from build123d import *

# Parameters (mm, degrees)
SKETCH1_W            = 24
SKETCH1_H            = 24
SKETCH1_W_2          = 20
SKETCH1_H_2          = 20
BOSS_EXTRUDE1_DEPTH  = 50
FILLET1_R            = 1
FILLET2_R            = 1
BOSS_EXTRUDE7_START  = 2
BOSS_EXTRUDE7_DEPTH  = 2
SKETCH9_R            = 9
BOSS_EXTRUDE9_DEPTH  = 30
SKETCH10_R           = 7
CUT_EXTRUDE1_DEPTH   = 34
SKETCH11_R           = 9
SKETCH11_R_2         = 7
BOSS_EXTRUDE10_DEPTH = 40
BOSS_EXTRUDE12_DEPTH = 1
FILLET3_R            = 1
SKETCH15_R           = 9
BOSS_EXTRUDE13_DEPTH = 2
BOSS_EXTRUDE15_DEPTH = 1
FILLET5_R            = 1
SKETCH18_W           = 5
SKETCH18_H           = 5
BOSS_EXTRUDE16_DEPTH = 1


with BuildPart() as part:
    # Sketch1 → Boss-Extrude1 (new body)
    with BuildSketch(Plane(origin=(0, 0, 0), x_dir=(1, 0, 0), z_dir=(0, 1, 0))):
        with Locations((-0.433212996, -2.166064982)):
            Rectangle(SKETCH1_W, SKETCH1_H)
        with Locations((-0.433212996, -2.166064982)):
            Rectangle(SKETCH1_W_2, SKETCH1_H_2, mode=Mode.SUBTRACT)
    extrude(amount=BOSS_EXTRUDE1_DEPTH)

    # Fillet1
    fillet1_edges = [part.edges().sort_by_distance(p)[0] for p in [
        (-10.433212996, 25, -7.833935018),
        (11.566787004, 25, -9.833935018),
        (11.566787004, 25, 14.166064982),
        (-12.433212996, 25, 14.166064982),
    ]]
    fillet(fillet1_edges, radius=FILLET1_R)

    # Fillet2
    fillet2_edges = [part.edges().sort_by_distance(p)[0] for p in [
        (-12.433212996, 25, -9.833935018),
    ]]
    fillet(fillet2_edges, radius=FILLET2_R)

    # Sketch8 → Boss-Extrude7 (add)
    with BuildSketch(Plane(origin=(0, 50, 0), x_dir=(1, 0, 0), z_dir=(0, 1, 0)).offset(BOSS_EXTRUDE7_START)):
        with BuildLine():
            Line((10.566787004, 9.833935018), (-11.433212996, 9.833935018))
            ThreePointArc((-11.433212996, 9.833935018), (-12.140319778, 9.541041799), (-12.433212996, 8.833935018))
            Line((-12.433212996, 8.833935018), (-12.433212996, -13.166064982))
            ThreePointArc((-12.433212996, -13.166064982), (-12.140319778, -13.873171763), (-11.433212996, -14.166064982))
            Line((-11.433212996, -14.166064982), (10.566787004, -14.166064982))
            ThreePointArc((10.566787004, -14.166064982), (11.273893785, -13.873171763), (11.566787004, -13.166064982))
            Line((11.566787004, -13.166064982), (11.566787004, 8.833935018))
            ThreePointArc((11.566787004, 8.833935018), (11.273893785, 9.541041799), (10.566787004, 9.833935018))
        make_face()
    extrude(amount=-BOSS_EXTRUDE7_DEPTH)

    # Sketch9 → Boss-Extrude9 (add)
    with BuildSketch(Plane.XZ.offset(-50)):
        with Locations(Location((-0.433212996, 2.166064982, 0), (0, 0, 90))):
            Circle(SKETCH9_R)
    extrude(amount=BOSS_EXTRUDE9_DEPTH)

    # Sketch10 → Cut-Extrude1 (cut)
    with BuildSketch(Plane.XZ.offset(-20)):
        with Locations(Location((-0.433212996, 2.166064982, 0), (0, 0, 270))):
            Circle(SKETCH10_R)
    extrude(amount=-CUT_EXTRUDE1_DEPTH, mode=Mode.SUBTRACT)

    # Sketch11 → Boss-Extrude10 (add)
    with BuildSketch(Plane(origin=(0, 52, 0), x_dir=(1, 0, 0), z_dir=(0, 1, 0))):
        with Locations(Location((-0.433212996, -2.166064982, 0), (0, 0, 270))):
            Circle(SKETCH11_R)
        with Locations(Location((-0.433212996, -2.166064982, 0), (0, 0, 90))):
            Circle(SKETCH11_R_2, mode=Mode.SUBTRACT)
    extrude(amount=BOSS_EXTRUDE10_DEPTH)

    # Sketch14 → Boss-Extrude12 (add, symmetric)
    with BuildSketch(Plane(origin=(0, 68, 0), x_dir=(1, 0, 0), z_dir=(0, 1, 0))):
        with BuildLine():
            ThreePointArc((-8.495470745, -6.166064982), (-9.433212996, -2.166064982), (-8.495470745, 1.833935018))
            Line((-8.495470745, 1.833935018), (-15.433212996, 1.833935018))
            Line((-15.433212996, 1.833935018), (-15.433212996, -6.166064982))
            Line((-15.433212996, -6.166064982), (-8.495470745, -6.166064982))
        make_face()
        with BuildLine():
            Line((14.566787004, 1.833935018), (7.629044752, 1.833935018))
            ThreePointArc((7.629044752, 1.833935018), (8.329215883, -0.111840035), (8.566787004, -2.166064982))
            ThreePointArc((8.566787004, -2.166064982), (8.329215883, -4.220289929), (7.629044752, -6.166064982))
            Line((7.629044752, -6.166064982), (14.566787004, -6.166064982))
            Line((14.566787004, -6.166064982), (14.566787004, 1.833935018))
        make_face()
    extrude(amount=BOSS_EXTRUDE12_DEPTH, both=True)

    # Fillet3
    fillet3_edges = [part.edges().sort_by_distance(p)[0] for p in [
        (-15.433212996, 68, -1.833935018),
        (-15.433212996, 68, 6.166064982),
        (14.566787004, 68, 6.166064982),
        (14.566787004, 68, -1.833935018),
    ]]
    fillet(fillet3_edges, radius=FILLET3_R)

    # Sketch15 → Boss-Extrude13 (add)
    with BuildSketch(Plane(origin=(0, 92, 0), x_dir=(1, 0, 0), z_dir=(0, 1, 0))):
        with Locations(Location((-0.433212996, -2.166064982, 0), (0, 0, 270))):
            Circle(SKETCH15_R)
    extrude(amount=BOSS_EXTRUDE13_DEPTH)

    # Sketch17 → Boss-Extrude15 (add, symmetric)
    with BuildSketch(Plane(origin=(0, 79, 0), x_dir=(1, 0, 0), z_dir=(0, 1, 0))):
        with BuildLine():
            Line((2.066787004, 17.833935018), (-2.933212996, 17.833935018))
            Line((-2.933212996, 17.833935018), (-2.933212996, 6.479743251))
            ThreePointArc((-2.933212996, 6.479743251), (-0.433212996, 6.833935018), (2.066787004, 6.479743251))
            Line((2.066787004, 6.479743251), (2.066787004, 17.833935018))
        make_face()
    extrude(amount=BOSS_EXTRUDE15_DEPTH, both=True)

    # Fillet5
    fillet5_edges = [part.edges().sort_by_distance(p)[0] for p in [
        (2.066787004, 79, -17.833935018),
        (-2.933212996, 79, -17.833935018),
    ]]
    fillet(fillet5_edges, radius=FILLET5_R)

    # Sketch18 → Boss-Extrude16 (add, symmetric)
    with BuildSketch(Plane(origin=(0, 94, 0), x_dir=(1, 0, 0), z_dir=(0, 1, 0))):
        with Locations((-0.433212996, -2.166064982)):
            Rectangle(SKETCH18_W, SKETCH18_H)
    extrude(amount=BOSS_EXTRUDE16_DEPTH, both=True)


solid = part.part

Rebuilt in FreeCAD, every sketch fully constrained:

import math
import FreeCAD as App
import Part
import Sketcher
Q = App.Units.Quantity


def edges_at(feature, points):
    """Names of the edges that pass closest to the given points."""
    edges = feature.Shape.Edges
    near = lambda p: min(range(len(edges)), key=lambda i: edges[i].distToShape(Part.Vertex(*p))[0])
    return sorted({f"Edge{near(p) + 1}" for p in points})

doc = App.newDocument("Part")
body = doc.addObject("PartDesign::Body", "Body")

# Sketch on XZ plane
sketch1 = body.newObject("Sketcher::SketchObject", "Sketch")
sketch1.AttachmentSupport = (doc.getObject("XZ_Plane"), [""])
sketch1.MapMode = "FlatFace"
sketch1.addGeometry(Part.LineSegment(App.Vector(-12.433213, -9.833935, 0), App.Vector(-12.433213, 14.166065, 0)), False)
sketch1.addGeometry(Part.LineSegment(App.Vector(-12.433213, 14.166065, 0), App.Vector(11.566787, 14.166065, 0)), False)
sketch1.addGeometry(Part.LineSegment(App.Vector(11.566787, 14.166065, 0), App.Vector(11.566787, -9.833935, 0)), False)
sketch1.addGeometry(Part.LineSegment(App.Vector(11.566787, -9.833935, 0), App.Vector(-12.433213, -9.833935, 0)), False)
sketch1.addGeometry(Part.LineSegment(App.Vector(9.566787, 12.166065, 0), App.Vector(-10.433213, 12.166065, 0)), False)
sketch1.addGeometry(Part.LineSegment(App.Vector(-10.433213, 12.166065, 0), App.Vector(-10.433213, -7.833935, 0)), False)
sketch1.addGeometry(Part.LineSegment(App.Vector(-10.433213, -7.833935, 0), App.Vector(9.566787, -7.833935, 0)), False)
sketch1.addGeometry(Part.LineSegment(App.Vector(9.566787, -7.833935, 0), App.Vector(9.566787, 12.166065, 0)), False)
sketch1.addConstraint(Sketcher.Constraint("Coincident", 0, 2, 1, 1))
sketch1.addConstraint(Sketcher.Constraint("Coincident", 1, 2, 2, 1))
sketch1.addConstraint(Sketcher.Constraint("Coincident", 2, 2, 3, 1))
sketch1.addConstraint(Sketcher.Constraint("Coincident", 3, 2, 0, 1))
sketch1.addConstraint(Sketcher.Constraint("Coincident", 4, 2, 5, 1))
sketch1.addConstraint(Sketcher.Constraint("Coincident", 5, 2, 6, 1))
sketch1.addConstraint(Sketcher.Constraint("Coincident", 6, 2, 7, 1))
sketch1.addConstraint(Sketcher.Constraint("Coincident", 7, 2, 4, 1))
sketch1.addConstraint(Sketcher.Constraint("Vertical", 0))
sketch1.addConstraint(Sketcher.Constraint("Horizontal", 1))
sketch1.addConstraint(Sketcher.Constraint("Vertical", 2))
sketch1.addConstraint(Sketcher.Constraint("Horizontal", 3))
sketch1.addConstraint(Sketcher.Constraint("Horizontal", 4))
sketch1.addConstraint(Sketcher.Constraint("Vertical", 5))
sketch1.addConstraint(Sketcher.Constraint("Horizontal", 6))
sketch1.addConstraint(Sketcher.Constraint("Vertical", 7))
sketch1.addConstraint(Sketcher.Constraint("Equal", 3, 0))
sketch1.addConstraint(Sketcher.Constraint("Equal", 6, 5))
sketch1.addConstraint(Sketcher.Constraint("DistanceX", 1, 1, 1, 2, Q("24 mm")))
sketch1.addConstraint(Sketcher.Constraint("DistanceX", 4, 2, 4, 1, Q("20 mm")))
sketch1.addConstraint(Sketcher.Constraint("DistanceX", 0, 2, 4, 2, Q("2 mm")))
sketch1.addConstraint(Sketcher.Constraint("DistanceY", 4, 2, 0, 2, Q("2 mm")))
sketch1.addConstraint(Sketcher.Constraint("DistanceX", 0, 2, -1, 1, Q("12.433213 mm")))
sketch1.addConstraint(Sketcher.Constraint("DistanceY", -1, 1, 0, 2, Q("14.166065 mm")))
pad1 = body.newObject("PartDesign::Pad", "Pad")
pad1.Profile = sketch1
pad1.Length = 50
pad1.Reversed = True
doc.recompute()

fillet = body.newObject("PartDesign::Fillet", "Fillet")
fillet.Base = (pad1, edges_at(pad1, [
    (-10.433, 25, -7.834),
    (11.567, 25, -9.834),
    (11.567, 25, 14.166),
    (-12.433, 25, 14.166),
]))
fillet.Radius = 1
doc.recompute()

fillet2 = body.newObject("PartDesign::Fillet", "Fillet001")
fillet2.Base = (fillet, edges_at(fillet, [(-12.433, 25, -9.834)]))
fillet2.Radius = 1

# Sketch on XZ plane
sketch2 = body.newObject("Sketcher::SketchObject", "Sketch001")
sketch2.AttachmentSupport = (doc.getObject("XZ_Plane"), [""])
sketch2.MapMode = "FlatFace"
sketch2.AttachmentOffset = App.Placement(App.Vector(0, 0, -52), App.Rotation())
sketch2.addGeometry(Part.LineSegment(App.Vector(10.566787, -9.833935, 0), App.Vector(-11.433213, -9.833935, 0)), False)
sketch2.addGeometry(Part.ArcOfCircle(Part.Circle(App.Vector(-11.433213, -8.833935, 0), App.Vector(0, 0, 1), 1), math.radians(180), math.radians(270)), False)
sketch2.addGeometry(Part.LineSegment(App.Vector(-12.433213, -8.833935, 0), App.Vector(-12.433213, 13.166065, 0)), False)
sketch2.addGeometry(Part.ArcOfCircle(Part.Circle(App.Vector(-11.433213, 13.166065, 0), App.Vector(0, 0, 1), 1), math.radians(90), math.radians(180)), False)
sketch2.addGeometry(Part.LineSegment(App.Vector(-11.433213, 14.166065, 0), App.Vector(10.566787, 14.166065, 0)), False)
sketch2.addGeometry(Part.ArcOfCircle(Part.Circle(App.Vector(10.566787, 13.166065, 0), App.Vector(0, 0, 1), 1), math.radians(0), math.radians(90)), False)
sketch2.addGeometry(Part.LineSegment(App.Vector(11.566787, 13.166065, 0), App.Vector(11.566787, -8.833935, 0)), False)
sketch2.addGeometry(Part.ArcOfCircle(Part.Circle(App.Vector(10.566787, -8.833935, 0), App.Vector(0, 0, 1), 1), math.radians(-90), math.radians(0)), False)
sketch2.addConstraint(Sketcher.Constraint("Tangent", 0, 2, 1, 2))
sketch2.addConstraint(Sketcher.Constraint("Tangent", 1, 1, 2, 1))
sketch2.addConstraint(Sketcher.Constraint("Tangent", 2, 2, 3, 2))
sketch2.addConstraint(Sketcher.Constraint("Tangent", 3, 1, 4, 1))
sketch2.addConstraint(Sketcher.Constraint("Tangent", 4, 2, 5, 2))
sketch2.addConstraint(Sketcher.Constraint("Tangent", 5, 1, 6, 1))
sketch2.addConstraint(Sketcher.Constraint("Tangent", 6, 2, 7, 2))
sketch2.addConstraint(Sketcher.Constraint("Tangent", 7, 1, 0, 1))
sketch2.addConstraint(Sketcher.Constraint("Horizontal", 0))
sketch2.addConstraint(Sketcher.Constraint("Vertical", 2))
sketch2.addConstraint(Sketcher.Constraint("Horizontal", 4))
sketch2.addConstraint(Sketcher.Constraint("Vertical", 6))
sketch2.addConstraint(Sketcher.Constraint("Equal", 1, 3))
sketch2.addConstraint(Sketcher.Constraint("Equal", 3, 5))
sketch2.addConstraint(Sketcher.Constraint("Equal", 5, 7))
sketch2.addConstraint(Sketcher.Constraint("Equal", 4, 2))
sketch2.addConstraint(Sketcher.Constraint("Radius", 1, Q("1 mm")))
sketch2.addConstraint(Sketcher.Constraint("DistanceX", 0, 2, 0, 1, Q("22 mm")))
sketch2.addConstraint(Sketcher.Constraint("DistanceX", 1, 3, -1, 1, Q("11.433213 mm")))
sketch2.addConstraint(Sketcher.Constraint("DistanceY", 1, 3, -1, 1, Q("8.833935 mm")))
pad2 = body.newObject("PartDesign::Pad", "Pad001")
pad2.Profile = sketch2
pad2.Length = 2

# Sketch on XZ plane
sketch3 = body.newObject("Sketcher::SketchObject", "Sketch002")
sketch3.AttachmentSupport = (doc.getObject("XZ_Plane"), [""])
sketch3.MapMode = "FlatFace"
sketch3.AttachmentOffset = App.Placement(App.Vector(0, 0, -50), App.Rotation())
sketch3.addGeometry(Part.Circle(App.Vector(-0.433213, 2.166065, 0), App.Vector(0, 0, 1), 9), False)
sketch3.addConstraint(Sketcher.Constraint("Diameter", 0, Q("18 mm")))
sketch3.addConstraint(Sketcher.Constraint("DistanceX", 0, 3, -1, 1, Q("0.433213 mm")))
sketch3.addConstraint(Sketcher.Constraint("DistanceY", -1, 1, 0, 3, Q("2.166065 mm")))
pad3 = body.newObject("PartDesign::Pad", "Pad002")
pad3.Profile = sketch3
pad3.Length = 30

# Sketch on XZ plane
sketch4 = body.newObject("Sketcher::SketchObject", "Sketch003")
sketch4.AttachmentSupport = (doc.getObject("XZ_Plane"), [""])
sketch4.MapMode = "FlatFace"
sketch4.AttachmentOffset = App.Placement(App.Vector(0, 0, -20), App.Rotation())
sketch4.addGeometry(Part.Circle(App.Vector(-0.433213, 2.166065, 0), App.Vector(0, 0, 1), 7), False)
sketch4.addConstraint(Sketcher.Constraint("Diameter", 0, Q("14 mm")))
sketch4.addConstraint(Sketcher.Constraint("DistanceX", 0, 3, -1, 1, Q("0.433213 mm")))
sketch4.addConstraint(Sketcher.Constraint("DistanceY", -1, 1, 0, 3, Q("2.166065 mm")))
pocket1 = body.newObject("PartDesign::Pocket", "Pocket")
pocket1.Profile = sketch4
pocket1.Length = 34

# Sketch on XZ plane
sketch5 = body.newObject("Sketcher::SketchObject", "Sketch004")
sketch5.AttachmentSupport = (doc.getObject("XZ_Plane"), [""])
sketch5.MapMode = "FlatFace"
sketch5.AttachmentOffset = App.Placement(App.Vector(0, 0, -52), App.Rotation())
sketch5.addGeometry(Part.Circle(App.Vector(-0.433213, 2.166065, 0), App.Vector(0, 0, 1), 9), False)
sketch5.addGeometry(Part.Circle(App.Vector(-0.433213, 2.166065, 0), App.Vector(0, 0, 1), 7), False)
sketch5.addConstraint(Sketcher.Constraint("Coincident", 1, 3, 0, 3))
sketch5.addConstraint(Sketcher.Constraint("Diameter", 0, Q("18 mm")))
sketch5.addConstraint(Sketcher.Constraint("Diameter", 1, Q("14 mm")))
sketch5.addConstraint(Sketcher.Constraint("DistanceX", 0, 3, -1, 1, Q("0.433213 mm")))
sketch5.addConstraint(Sketcher.Constraint("DistanceY", -1, 1, 0, 3, Q("2.166065 mm")))
pad4 = body.newObject("PartDesign::Pad", "Pad003")
pad4.Profile = sketch5
pad4.Length = 40
pad4.Reversed = True

# Sketch on XZ plane
sketch6 = body.newObject("Sketcher::SketchObject", "Sketch005")
sketch6.AttachmentSupport = (doc.getObject("XZ_Plane"), [""])
sketch6.MapMode = "FlatFace"
sketch6.AttachmentOffset = App.Placement(App.Vector(0, 0, -68), App.Rotation())
sketch6.addGeometry(Part.ArcOfCircle(Part.Circle(App.Vector(-0.433213, 2.166065, 0), App.Vector(0, 0, 1), 9), math.radians(153.6122), math.radians(206.3878)), False)
sketch6.addGeometry(Part.LineSegment(App.Vector(-8.495471, -1.833935, 0), App.Vector(-15.433213, -1.833935, 0)), False)
sketch6.addGeometry(Part.LineSegment(App.Vector(-15.433213, -1.833935, 0), App.Vector(-15.433213, 6.166065, 0)), False)
sketch6.addGeometry(Part.LineSegment(App.Vector(-15.433213, 6.166065, 0), App.Vector(-8.495471, 6.166065, 0)), False)
sketch6.addGeometry(Part.LineSegment(App.Vector(14.566787, -1.833935, 0), App.Vector(7.629045, -1.833935, 0)), False)
sketch6.addGeometry(Part.ArcOfCircle(Part.Circle(App.Vector(-0.433213, 2.166065, 0), App.Vector(0, 0, 1), 9), math.radians(-26.3878), math.radians(0)), False)
sketch6.addGeometry(Part.ArcOfCircle(Part.Circle(App.Vector(-0.433213, 2.166065, 0), App.Vector(0, 0, 1), 9), math.radians(0), math.radians(26.3878)), False)
sketch6.addGeometry(Part.LineSegment(App.Vector(7.629045, 6.166065, 0), App.Vector(14.566787, 6.166065, 0)), False)
sketch6.addGeometry(Part.LineSegment(App.Vector(14.566787, 6.166065, 0), App.Vector(14.566787, -1.833935, 0)), False)
sketch6.addConstraint(Sketcher.Constraint("Coincident", 0, 2, 1, 1))
sketch6.addConstraint(Sketcher.Constraint("Coincident", 1, 2, 2, 1))
sketch6.addConstraint(Sketcher.Constraint("Coincident", 2, 2, 3, 1))
sketch6.addConstraint(Sketcher.Constraint("Coincident", 3, 2, 0, 1))
sketch6.addConstraint(Sketcher.Constraint("Coincident", 4, 2, 5, 1))
sketch6.addConstraint(Sketcher.Constraint("Tangent", 5, 2, 6, 1))
sketch6.addConstraint(Sketcher.Constraint("Coincident", 6, 2, 7, 1))
sketch6.addConstraint(Sketcher.Constraint("Coincident", 7, 2, 8, 1))
sketch6.addConstraint(Sketcher.Constraint("Coincident", 8, 2, 4, 1))
sketch6.addConstraint(Sketcher.Constraint("Horizontal", 1))
sketch6.addConstraint(Sketcher.Constraint("Vertical", 2))
sketch6.addConstraint(Sketcher.Constraint("Horizontal", 3))
sketch6.addConstraint(Sketcher.Constraint("Horizontal", 4))
sketch6.addConstraint(Sketcher.Constraint("Horizontal", 7))
sketch6.addConstraint(Sketcher.Constraint("Vertical", 8))
sketch6.addConstraint(Sketcher.Constraint("Coincident", 5, 3, 0, 3))
sketch6.addConstraint(Sketcher.Constraint("Equal", 0, 5))
sketch6.addConstraint(Sketcher.Constraint("Equal", 5, 6))
sketch6.addConstraint(Sketcher.Constraint("Horizontal", 1, 2, 4, 2))
sketch6.addConstraint(Sketcher.Constraint("Horizontal", 6, 3, 5, 2))
sketch6.addConstraint(Sketcher.Constraint("Horizontal", 3, 2, 6, 2))
sketch6.addConstraint(Sketcher.Constraint("Vertical", 0, 2, 3, 2))
sketch6.addConstraint(Sketcher.Constraint("Equal", 3, 4))
sketch6.addConstraint(Sketcher.Constraint("Radius", 0, Q("9 mm")))
sketch6.addConstraint(Sketcher.Constraint("DistanceY", 2, 1, 2, 2, Q("8 mm")))
sketch6.addConstraint(Sketcher.Constraint("DistanceX", 1, 2, 6, 3, Q("15 mm")))
sketch6.addConstraint(Sketcher.Constraint("DistanceX", 0, 2, -1, 1, Q("8.495471 mm")))
sketch6.addConstraint(Sketcher.Constraint("DistanceY", -1, 1, 0, 3, Q("2.166065 mm")))
pad5 = body.newObject("PartDesign::Pad", "Pad004")
pad5.Profile = sketch6
pad5.Length = 2
pad5.Midplane = True
doc.recompute()

fillet3 = body.newObject("PartDesign::Fillet", "Fillet002")
fillet3.Base = (pad5, edges_at(pad5, [
    (-15.433, 68, -1.834),
    (-15.433, 68, 6.166),
    (14.567, 68, 6.166),
    (14.567, 68, -1.834),
]))
fillet3.Radius = 1

# Sketch on XZ plane
sketch7 = body.newObject("Sketcher::SketchObject", "Sketch006")
sketch7.AttachmentSupport = (doc.getObject("XZ_Plane"), [""])
sketch7.MapMode = "FlatFace"
sketch7.AttachmentOffset = App.Placement(App.Vector(0, 0, -92), App.Rotation())
sketch7.addGeometry(Part.Circle(App.Vector(-0.433213, 2.166065, 0), App.Vector(0, 0, 1), 9), False)
sketch7.addConstraint(Sketcher.Constraint("Diameter", 0, Q("18 mm")))
sketch7.addConstraint(Sketcher.Constraint("DistanceX", 0, 3, -1, 1, Q("0.433213 mm")))
sketch7.addConstraint(Sketcher.Constraint("DistanceY", -1, 1, 0, 3, Q("2.166065 mm")))
pad6 = body.newObject("PartDesign::Pad", "Pad005")
pad6.Profile = sketch7
pad6.Length = 2
pad6.Reversed = True

# Sketch on XZ plane
sketch8 = body.newObject("Sketcher::SketchObject", "Sketch007")
sketch8.AttachmentSupport = (doc.getObject("XZ_Plane"), [""])
sketch8.MapMode = "FlatFace"
sketch8.AttachmentOffset = App.Placement(App.Vector(0, 0, -79), App.Rotation())
sketch8.addGeometry(Part.LineSegment(App.Vector(2.066787, -17.833935, 0), App.Vector(-2.933213, -17.833935, 0)), False)
sketch8.addGeometry(Part.LineSegment(App.Vector(-2.933213, -17.833935, 0), App.Vector(-2.933213, -6.479743, 0)), False)
sketch8.addGeometry(Part.ArcOfCircle(Part.Circle(App.Vector(-0.433213, 2.166065, 0), App.Vector(0, 0, 1), 9), math.radians(-106.12762), math.radians(-73.87238)), False)
sketch8.addGeometry(Part.LineSegment(App.Vector(2.066787, -6.479743, 0), App.Vector(2.066787, -17.833935, 0)), False)
sketch8.addConstraint(Sketcher.Constraint("Coincident", 0, 2, 1, 1))
sketch8.addConstraint(Sketcher.Constraint("Coincident", 1, 2, 2, 1))
sketch8.addConstraint(Sketcher.Constraint("Coincident", 2, 2, 3, 1))
sketch8.addConstraint(Sketcher.Constraint("Coincident", 3, 2, 0, 1))
sketch8.addConstraint(Sketcher.Constraint("Horizontal", 0))
sketch8.addConstraint(Sketcher.Constraint("Vertical", 1))
sketch8.addConstraint(Sketcher.Constraint("Vertical", 3))
sketch8.addConstraint(Sketcher.Constraint("Horizontal", 1, 2, 2, 2))
sketch8.addConstraint(Sketcher.Constraint("Radius", 2, Q("9 mm")))
sketch8.addConstraint(Sketcher.Constraint("DistanceX", 0, 2, 0, 1, Q("5 mm")))
sketch8.addConstraint(Sketcher.Constraint("DistanceY", 0, 2, 2, 3, Q("20 mm")))
sketch8.addConstraint(Sketcher.Constraint("DistanceX", 2, 3, -1, 1, Q("0.433213 mm")))
sketch8.addConstraint(Sketcher.Constraint("DistanceY", -1, 1, 2, 3, Q("2.166065 mm")))
pad7 = body.newObject("PartDesign::Pad", "Pad006")
pad7.Profile = sketch8
pad7.Length = 2
pad7.Midplane = True
doc.recompute()

fillet4 = body.newObject("PartDesign::Fillet", "Fillet003")
fillet4.Base = (pad7, edges_at(pad7, [(2.067, 79, -17.834), (-2.933, 79, -17.834)]))
fillet4.Radius = 1

# Sketch on XZ plane
sketch9 = body.newObject("Sketcher::SketchObject", "Sketch008")
sketch9.AttachmentSupport = (doc.getObject("XZ_Plane"), [""])
sketch9.MapMode = "FlatFace"
sketch9.AttachmentOffset = App.Placement(App.Vector(0, 0, -94), App.Rotation())
sketch9.addGeometry(Part.LineSegment(App.Vector(-2.933213, -0.333935, 0), App.Vector(-2.933213, 4.666065, 0)), False)
sketch9.addGeometry(Part.LineSegment(App.Vector(-2.933213, 4.666065, 0), App.Vector(2.066787, 4.666065, 0)), False)
sketch9.addGeometry(Part.LineSegment(App.Vector(2.066787, 4.666065, 0), App.Vector(2.066787, -0.333935, 0)), False)
sketch9.addGeometry(Part.LineSegment(App.Vector(2.066787, -0.333935, 0), App.Vector(-2.933213, -0.333935, 0)), False)
sketch9.addConstraint(Sketcher.Constraint("Coincident", 0, 2, 1, 1))
sketch9.addConstraint(Sketcher.Constraint("Coincident", 1, 2, 2, 1))
sketch9.addConstraint(Sketcher.Constraint("Coincident", 2, 2, 3, 1))
sketch9.addConstraint(Sketcher.Constraint("Coincident", 3, 2, 0, 1))
sketch9.addConstraint(Sketcher.Constraint("Vertical", 0))
sketch9.addConstraint(Sketcher.Constraint("Horizontal", 1))
sketch9.addConstraint(Sketcher.Constraint("Vertical", 2))
sketch9.addConstraint(Sketcher.Constraint("Horizontal", 3))
sketch9.addConstraint(Sketcher.Constraint("Equal", 3, 0))
sketch9.addConstraint(Sketcher.Constraint("DistanceX", 1, 1, 1, 2, Q("5 mm")))
sketch9.addConstraint(Sketcher.Constraint("DistanceX", 0, 2, -1, 1, Q("2.933213 mm")))
sketch9.addConstraint(Sketcher.Constraint("DistanceY", -1, 1, 0, 2, Q("4.666065 mm")))
pad8 = body.newObject("PartDesign::Pad", "Pad007")
pad8.Profile = sketch9
pad8.Length = 2
pad8.Midplane = True

doc.recompute()
